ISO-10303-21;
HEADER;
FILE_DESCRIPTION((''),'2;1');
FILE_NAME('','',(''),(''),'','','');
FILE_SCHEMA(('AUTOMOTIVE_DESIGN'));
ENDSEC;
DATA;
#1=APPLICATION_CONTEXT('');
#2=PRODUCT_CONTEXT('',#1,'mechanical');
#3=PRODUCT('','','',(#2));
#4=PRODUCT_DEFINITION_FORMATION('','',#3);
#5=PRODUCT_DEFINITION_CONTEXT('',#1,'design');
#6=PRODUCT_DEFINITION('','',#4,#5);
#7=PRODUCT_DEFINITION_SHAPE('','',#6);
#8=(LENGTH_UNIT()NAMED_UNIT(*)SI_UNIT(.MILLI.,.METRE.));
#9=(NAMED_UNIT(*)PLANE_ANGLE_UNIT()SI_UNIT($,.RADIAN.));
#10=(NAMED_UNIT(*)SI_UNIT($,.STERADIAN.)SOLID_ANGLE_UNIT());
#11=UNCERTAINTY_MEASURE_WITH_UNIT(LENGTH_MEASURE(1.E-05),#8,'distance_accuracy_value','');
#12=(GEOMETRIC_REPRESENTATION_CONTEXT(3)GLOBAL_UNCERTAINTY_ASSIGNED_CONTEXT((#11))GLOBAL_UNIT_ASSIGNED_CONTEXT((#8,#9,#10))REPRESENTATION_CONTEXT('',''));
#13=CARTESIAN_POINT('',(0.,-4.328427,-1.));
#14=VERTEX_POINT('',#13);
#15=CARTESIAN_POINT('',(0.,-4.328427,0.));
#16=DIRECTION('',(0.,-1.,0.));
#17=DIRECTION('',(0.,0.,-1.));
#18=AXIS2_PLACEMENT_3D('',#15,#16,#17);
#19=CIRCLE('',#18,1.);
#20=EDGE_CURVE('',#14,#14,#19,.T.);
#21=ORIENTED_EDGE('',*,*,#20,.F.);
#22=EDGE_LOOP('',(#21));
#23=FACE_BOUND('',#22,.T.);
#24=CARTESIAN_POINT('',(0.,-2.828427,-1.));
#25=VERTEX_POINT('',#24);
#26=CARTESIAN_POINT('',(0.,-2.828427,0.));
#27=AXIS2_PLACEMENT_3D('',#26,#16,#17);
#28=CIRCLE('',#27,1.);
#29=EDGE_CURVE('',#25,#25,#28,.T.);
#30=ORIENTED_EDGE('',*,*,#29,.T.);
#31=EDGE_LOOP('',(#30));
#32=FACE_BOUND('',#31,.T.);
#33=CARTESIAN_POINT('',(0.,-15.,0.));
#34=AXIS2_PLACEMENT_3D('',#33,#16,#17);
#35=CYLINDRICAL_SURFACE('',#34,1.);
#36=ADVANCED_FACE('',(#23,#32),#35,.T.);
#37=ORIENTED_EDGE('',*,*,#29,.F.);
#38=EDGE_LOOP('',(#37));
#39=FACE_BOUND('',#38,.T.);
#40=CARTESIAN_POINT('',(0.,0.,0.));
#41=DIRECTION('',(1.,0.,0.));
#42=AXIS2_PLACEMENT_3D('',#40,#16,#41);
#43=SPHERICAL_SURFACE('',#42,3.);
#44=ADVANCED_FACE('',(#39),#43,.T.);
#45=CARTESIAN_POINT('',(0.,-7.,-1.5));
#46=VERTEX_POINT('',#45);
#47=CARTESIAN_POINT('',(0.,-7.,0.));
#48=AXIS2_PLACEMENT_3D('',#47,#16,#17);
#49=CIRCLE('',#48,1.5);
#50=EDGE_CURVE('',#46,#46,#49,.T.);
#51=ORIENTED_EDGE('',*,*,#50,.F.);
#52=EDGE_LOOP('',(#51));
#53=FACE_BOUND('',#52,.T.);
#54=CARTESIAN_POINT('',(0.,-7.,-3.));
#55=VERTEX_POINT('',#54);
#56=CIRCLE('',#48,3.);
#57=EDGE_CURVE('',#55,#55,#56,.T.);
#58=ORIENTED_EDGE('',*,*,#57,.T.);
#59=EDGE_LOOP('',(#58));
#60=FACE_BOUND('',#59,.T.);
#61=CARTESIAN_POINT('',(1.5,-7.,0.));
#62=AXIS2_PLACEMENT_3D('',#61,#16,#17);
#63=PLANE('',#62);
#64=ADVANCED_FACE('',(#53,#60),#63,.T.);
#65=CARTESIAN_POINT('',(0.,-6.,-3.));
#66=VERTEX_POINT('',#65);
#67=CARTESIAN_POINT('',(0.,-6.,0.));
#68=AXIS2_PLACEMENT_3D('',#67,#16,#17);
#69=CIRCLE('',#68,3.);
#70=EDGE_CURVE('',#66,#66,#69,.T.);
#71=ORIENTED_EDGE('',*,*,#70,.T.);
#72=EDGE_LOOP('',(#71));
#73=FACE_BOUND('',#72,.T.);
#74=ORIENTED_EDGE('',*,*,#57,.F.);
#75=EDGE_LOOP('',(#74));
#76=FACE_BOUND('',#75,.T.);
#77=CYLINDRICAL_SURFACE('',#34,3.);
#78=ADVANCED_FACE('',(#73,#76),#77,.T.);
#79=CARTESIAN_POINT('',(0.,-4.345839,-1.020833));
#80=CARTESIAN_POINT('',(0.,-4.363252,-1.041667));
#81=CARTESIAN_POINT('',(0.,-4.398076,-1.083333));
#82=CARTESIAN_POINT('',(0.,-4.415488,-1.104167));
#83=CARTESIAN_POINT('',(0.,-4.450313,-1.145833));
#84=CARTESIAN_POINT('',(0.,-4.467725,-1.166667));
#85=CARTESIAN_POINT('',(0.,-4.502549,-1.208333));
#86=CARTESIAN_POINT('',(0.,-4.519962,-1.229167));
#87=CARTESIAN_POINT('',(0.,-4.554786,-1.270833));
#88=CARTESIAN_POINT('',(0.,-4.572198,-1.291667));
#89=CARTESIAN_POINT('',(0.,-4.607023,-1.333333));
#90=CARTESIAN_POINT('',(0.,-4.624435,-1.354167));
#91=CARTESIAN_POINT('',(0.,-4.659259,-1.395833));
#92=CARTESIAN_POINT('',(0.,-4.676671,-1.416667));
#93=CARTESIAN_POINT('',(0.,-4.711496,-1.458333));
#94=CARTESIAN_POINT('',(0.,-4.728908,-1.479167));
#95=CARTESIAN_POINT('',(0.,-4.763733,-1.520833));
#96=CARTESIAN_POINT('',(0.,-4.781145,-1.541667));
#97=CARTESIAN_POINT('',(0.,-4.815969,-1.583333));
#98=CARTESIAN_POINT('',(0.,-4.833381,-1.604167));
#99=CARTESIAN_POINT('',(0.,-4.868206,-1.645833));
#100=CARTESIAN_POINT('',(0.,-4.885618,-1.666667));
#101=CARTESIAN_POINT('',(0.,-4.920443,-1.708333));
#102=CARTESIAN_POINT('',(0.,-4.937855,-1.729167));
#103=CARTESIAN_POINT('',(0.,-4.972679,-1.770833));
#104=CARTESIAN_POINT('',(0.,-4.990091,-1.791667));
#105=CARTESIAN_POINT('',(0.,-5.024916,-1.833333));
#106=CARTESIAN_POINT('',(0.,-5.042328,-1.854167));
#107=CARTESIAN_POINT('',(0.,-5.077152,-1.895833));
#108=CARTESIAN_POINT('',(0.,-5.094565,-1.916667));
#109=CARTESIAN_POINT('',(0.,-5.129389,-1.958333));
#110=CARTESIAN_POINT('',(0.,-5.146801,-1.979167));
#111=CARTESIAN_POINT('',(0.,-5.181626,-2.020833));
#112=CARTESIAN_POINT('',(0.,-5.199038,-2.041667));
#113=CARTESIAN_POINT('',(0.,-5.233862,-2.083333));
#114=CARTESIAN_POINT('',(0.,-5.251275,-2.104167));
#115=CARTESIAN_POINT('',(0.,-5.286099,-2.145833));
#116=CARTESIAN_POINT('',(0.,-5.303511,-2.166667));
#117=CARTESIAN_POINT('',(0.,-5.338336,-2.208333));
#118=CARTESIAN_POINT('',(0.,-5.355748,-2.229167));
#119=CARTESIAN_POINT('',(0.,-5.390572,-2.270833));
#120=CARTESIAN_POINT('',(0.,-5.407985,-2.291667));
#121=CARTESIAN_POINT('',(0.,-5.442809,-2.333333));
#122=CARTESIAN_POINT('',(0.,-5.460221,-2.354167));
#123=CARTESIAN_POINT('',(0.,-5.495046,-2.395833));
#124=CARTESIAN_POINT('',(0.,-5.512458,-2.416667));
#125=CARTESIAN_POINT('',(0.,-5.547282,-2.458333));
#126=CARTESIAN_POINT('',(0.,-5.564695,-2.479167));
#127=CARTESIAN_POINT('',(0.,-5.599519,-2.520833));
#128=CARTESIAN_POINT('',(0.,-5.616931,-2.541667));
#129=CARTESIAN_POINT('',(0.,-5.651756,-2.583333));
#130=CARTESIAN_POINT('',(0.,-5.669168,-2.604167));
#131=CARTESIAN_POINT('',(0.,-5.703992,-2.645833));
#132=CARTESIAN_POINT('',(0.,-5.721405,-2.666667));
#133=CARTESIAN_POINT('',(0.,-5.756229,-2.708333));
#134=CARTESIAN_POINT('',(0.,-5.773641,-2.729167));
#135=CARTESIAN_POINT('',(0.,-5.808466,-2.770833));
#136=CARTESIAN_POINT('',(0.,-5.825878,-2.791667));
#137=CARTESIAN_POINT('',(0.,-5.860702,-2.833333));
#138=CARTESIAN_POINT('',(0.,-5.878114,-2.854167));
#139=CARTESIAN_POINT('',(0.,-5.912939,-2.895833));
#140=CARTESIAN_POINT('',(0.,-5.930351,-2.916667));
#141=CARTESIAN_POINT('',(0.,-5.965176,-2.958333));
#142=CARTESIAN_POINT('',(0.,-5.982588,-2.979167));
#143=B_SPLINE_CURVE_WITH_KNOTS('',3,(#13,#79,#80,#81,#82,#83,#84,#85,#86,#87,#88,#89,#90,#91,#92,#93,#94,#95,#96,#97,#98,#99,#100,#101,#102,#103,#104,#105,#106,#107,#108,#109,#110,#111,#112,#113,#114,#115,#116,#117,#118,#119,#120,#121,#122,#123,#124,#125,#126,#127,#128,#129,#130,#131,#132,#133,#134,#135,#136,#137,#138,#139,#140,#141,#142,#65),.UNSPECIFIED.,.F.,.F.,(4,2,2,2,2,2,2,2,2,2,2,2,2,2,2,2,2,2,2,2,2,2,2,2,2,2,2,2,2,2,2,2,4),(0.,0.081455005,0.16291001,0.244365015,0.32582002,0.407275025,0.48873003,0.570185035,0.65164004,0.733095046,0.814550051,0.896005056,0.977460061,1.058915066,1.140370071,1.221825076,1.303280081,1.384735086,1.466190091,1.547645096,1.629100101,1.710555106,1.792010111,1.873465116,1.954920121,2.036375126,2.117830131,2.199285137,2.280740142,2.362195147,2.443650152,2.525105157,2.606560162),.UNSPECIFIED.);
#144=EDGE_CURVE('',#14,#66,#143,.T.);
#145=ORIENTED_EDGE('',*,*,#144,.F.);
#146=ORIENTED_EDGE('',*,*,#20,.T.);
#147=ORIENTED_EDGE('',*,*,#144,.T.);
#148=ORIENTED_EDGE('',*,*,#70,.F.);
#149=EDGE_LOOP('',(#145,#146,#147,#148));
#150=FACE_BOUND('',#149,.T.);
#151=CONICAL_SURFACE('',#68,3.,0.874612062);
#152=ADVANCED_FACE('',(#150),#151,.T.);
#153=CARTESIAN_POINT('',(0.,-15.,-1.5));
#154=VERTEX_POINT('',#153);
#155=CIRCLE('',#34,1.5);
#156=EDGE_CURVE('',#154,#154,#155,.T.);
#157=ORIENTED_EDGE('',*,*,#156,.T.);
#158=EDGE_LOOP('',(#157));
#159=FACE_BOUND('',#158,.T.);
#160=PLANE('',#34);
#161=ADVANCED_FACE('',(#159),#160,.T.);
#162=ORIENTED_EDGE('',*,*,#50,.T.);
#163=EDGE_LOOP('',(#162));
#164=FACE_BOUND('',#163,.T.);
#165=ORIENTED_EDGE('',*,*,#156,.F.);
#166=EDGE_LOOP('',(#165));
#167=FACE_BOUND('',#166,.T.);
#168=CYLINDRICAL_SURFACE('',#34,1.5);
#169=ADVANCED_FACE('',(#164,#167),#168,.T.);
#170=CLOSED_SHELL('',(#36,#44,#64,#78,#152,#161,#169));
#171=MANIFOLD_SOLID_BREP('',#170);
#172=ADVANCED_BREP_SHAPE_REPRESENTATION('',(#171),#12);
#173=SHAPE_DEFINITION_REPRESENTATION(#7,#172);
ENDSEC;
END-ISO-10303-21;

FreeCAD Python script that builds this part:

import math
import FreeCAD as App
import Part
import Sketcher
Q = App.Units.Quantity

doc = App.newDocument("Part")
body = doc.addObject("PartDesign::Body", "Body")

# Sketch on XY plane
sketch1 = body.newObject("Sketcher::SketchObject", "Sketch")
sketch1.AttachmentSupport = (doc.getObject("XY_Plane"), [""])
sketch1.MapMode = "FlatFace"
sketch1.addGeometry(Part.LineSegment(App.Vector(0, -15, 0), App.Vector(1.5, -15, 0)), False)
sketch1.addGeometry(Part.LineSegment(App.Vector(1.5, -15, 0), App.Vector(1.5, -7, 0)), False)
sketch1.addGeometry(Part.LineSegment(App.Vector(1.5, -7, 0), App.Vector(3, -7, 0)), False)
sketch1.addGeometry(Part.LineSegment(App.Vector(3, -7, 0), App.Vector(3, -6, 0)), False)
sketch1.addGeometry(Part.LineSegment(App.Vector(3, -6, 0), App.Vector(1, -4.3, 0)), False)
sketch1.addGeometry(Part.LineSegment(App.Vector(1, -4.3, 0), App.Vector(1, -2.8, 0)), False)
sketch1.addGeometry(Part.ArcOfCircle(Part.Circle(App.Vector(0, 0, 0), App.Vector(0, 0, 1), 3), math.radians(-71), math.radians(90)), False)
sketch1.addGeometry(Part.LineSegment(App.Vector(0, 3, 0), App.Vector(0, -15, 0)), False)
sketch1.addConstraint(Sketcher.Constraint("Coincident", 0, 2, 1, 1))
sketch1.addConstraint(Sketcher.Constraint("Coincident", 1, 2, 2, 1))
sketch1.addConstraint(Sketcher.Constraint("Coincident", 2, 2, 3, 1))
sketch1.addConstraint(Sketcher.Constraint("Coincident", 3, 2, 4, 1))
sketch1.addConstraint(Sketcher.Constraint("Coincident", 4, 2, 5, 1))
sketch1.addConstraint(Sketcher.Constraint("Coincident", 5, 2, 6, 1))
sketch1.addConstraint(Sketcher.Constraint("Coincident", 6, 2, 7, 1))
sketch1.addConstraint(Sketcher.Constraint("Coincident", 7, 2, 0, 1))
sketch1.addConstraint(Sketcher.Constraint("Horizontal", 0))
sketch1.addConstraint(Sketcher.Constraint("Vertical", 1))
sketch1.addConstraint(Sketcher.Constraint("Horizontal", 2))
sketch1.addConstraint(Sketcher.Constraint("Vertical", 3))
sketch1.addConstraint(Sketcher.Constraint("Vertical", 5))
sketch1.addConstraint(Sketcher.Constraint("Vertical", 7))
sketch1.addConstraint(Sketcher.Constraint("Coincident", 6, 3, -1, 1))
sketch1.addConstraint(Sketcher.Constraint("PointOnObject", 6, 2, -2))
sketch1.addConstraint(Sketcher.Constraint("Equal", 0, 2))
sketch1.addConstraint(Sketcher.Constraint("Equal", 2, 5))
sketch1.addConstraint(Sketcher.Constraint("Radius", 6, Q("3 mm")))
sketch1.addConstraint(Sketcher.Constraint("DistanceY", 1, 1, 1, 2, Q("8 mm")))
sketch1.addConstraint(Sketcher.Constraint("DistanceY", 3, 1, 3, 2, Q("1 mm")))
sketch1.addConstraint(Sketcher.Constraint("DistanceY", 7, 2, 7, 1, Q("18 mm")))
sketch1.addConstraint(Sketcher.Constraint("DistanceX", 0, 1, 0, 2, Q("1.5 mm")))
sketch1.addConstraint(Sketcher.Constraint("DistanceX", -1, 1, 4, 2, Q("1 mm")))
revolution = body.newObject("PartDesign::Revolution", "Revolution")
revolution.Profile = sketch1
revolution.ReferenceAxis = (sketch1, ["V_Axis"])
revolution.Angle = 360

doc.recompute()
